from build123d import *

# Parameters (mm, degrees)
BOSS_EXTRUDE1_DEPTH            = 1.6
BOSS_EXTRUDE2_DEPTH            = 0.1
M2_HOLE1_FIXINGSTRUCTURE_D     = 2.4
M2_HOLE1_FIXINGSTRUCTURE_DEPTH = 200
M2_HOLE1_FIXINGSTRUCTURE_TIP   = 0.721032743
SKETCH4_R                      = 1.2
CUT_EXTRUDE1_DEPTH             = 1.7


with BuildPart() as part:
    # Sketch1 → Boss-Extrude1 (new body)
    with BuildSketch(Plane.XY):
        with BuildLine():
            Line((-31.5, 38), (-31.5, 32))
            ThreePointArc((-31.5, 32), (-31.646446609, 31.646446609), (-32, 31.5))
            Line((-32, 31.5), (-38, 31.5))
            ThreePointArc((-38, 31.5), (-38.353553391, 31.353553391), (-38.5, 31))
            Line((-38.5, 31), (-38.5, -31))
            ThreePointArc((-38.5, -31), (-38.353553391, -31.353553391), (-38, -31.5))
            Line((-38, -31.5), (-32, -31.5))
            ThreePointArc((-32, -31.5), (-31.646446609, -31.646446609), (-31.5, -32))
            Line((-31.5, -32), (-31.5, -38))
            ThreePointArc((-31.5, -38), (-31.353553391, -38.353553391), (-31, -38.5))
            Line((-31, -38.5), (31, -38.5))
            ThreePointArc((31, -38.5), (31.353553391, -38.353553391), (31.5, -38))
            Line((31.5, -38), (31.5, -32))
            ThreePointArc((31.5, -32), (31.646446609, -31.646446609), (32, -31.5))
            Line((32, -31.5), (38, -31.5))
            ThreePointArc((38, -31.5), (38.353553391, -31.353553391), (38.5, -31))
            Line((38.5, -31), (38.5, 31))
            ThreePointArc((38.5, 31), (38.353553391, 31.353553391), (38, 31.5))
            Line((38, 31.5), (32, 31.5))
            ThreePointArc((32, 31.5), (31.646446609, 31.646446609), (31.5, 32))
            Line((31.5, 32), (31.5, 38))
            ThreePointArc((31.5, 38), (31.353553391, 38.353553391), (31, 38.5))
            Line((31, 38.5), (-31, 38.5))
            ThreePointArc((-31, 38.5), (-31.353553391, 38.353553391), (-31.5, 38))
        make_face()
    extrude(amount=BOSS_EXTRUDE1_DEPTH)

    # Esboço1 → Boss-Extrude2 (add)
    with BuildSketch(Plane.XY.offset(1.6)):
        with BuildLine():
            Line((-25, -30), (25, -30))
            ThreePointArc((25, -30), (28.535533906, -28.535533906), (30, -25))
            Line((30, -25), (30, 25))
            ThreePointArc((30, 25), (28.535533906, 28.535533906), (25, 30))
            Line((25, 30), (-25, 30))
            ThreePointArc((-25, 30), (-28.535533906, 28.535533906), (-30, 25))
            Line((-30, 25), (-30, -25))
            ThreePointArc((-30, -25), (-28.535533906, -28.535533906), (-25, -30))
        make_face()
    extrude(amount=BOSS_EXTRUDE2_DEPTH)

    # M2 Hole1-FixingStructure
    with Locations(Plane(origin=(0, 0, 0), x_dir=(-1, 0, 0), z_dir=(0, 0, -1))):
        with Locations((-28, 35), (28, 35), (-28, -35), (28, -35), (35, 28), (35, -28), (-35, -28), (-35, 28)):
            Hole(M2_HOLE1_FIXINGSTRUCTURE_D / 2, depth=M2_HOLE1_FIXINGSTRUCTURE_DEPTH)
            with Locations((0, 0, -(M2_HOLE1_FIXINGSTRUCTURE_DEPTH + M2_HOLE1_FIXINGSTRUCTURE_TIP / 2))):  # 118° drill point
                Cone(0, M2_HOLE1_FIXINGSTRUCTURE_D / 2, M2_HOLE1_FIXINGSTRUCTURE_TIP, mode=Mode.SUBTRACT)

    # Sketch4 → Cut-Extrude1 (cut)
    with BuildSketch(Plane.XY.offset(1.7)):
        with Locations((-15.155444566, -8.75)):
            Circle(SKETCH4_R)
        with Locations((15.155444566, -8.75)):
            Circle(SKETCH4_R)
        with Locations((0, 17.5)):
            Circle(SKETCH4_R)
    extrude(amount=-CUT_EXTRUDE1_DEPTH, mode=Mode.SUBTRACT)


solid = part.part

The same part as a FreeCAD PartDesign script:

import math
import FreeCAD as App
import Part
import Sketcher

V = App.Vector
Q = App.Units.Quantity

doc = App.newDocument("Part")
body = doc.addObject("PartDesign::Body", "Body")

sketch1 = body.newObject("Sketcher::SketchObject", "Sketch")
sketch1.AttachmentSupport = (doc.getObject("XY_Plane"), [""])
sketch1.MapMode = "FlatFace"
sketch1.addGeometry(Part.LineSegment(V(-31.5, 38, 0), V(-31.5, 32, 0)), False)
sketch1.addGeometry(Part.ArcOfCircle(Part.Circle(V(-32, 32, 0), V(0, 0, 1), 0.5), math.radians(-90), math.radians(0)), False)
sketch1.addGeometry(Part.LineSegment(V(-32, 31.5, 0), V(-38, 31.5, 0)), False)
sketch1.addGeometry(Part.ArcOfCircle(Part.Circle(V(-38, 31, 0), V(0, 0, 1), 0.5), math.radians(90), math.radians(180)), False)
sketch1.addGeometry(Part.LineSegment(V(-38.5, 31, 0), V(-38.5, -31, 0)), False)
sketch1.addGeometry(Part.ArcOfCircle(Part.Circle(V(-38, -31, 0), V(0, 0, 1), 0.5), math.radians(180), math.radians(270)), False)
sketch1.addGeometry(Part.LineSegment(V(-38, -31.5, 0), V(-32, -31.5, 0)), False)
sketch1.addGeometry(Part.ArcOfCircle(Part.Circle(V(-32, -32, 0), V(0, 0, 1), 0.5), math.radians(0), math.radians(90)), False)
sketch1.addGeometry(Part.LineSegment(V(-31.5, -32, 0), V(-31.5, -38, 0)), False)
sketch1.addGeometry(Part.ArcOfCircle(Part.Circle(V(-31, -38, 0), V(0, 0, 1), 0.5), math.radians(180), math.radians(270)), False)
sketch1.addGeometry(Part.LineSegment(V(-31, -38.5, 0), V(31, -38.5, 0)), False)
sketch1.addGeometry(Part.ArcOfCircle(Part.Circle(V(31, -38, 0), V(0, 0, 1), 0.5), math.radians(-90), math.radians(0)), False)
sketch1.addGeometry(Part.LineSegment(V(31.5, -38, 0), V(31.5, -32, 0)), False)
sketch1.addGeometry(Part.ArcOfCircle(Part.Circle(V(32, -32, 0), V(0, 0, 1), 0.5), math.radians(90), math.radians(180)), False)
sketch1.addGeometry(Part.LineSegment(V(32, -31.5, 0), V(38, -31.5, 0)), False)
sketch1.addGeometry(Part.ArcOfCircle(Part.Circle(V(38, -31, 0), V(0, 0, 1), 0.5), math.radians(-90), math.radians(0)), False)
sketch1.addGeometry(Part.LineSegment(V(38.5, -31, 0), V(38.5, 31, 0)), False)
sketch1.addGeometry(Part.ArcOfCircle(Part.Circle(V(38, 31, 0), V(0, 0, 1), 0.5), math.radians(0), math.radians(90)), False)
sketch1.addGeometry(Part.LineSegment(V(38, 31.5, 0), V(32, 31.5, 0)), False)
sketch1.addGeometry(Part.ArcOfCircle(Part.Circle(V(32, 32, 0), V(0, 0, 1), 0.5), math.radians(180), math.radians(270)), False)
sketch1.addGeometry(Part.LineSegment(V(31.5, 32, 0), V(31.5, 38, 0)), False)
sketch1.addGeometry(Part.ArcOfCircle(Part.Circle(V(31, 38, 0), V(0, 0, 1), 0.5), math.radians(0), math.radians(90)), False)
sketch1.addGeometry(Part.LineSegment(V(31, 38.5, 0), V(-31, 38.5, 0)), False)
sketch1.addGeometry(Part.ArcOfCircle(Part.Circle(V(-31, 38, 0), V(0, 0, 1), 0.5), math.radians(90), math.radians(180)), False)
sketch1.addConstraint(Sketcher.Constraint("Tangent", 0, 2, 1, 2))
sketch1.addConstraint(Sketcher.Constraint("Tangent", 1, 1, 2, 1))
sketch1.addConstraint(Sketcher.Constraint("Tangent", 2, 2, 3, 1))
sketch1.addConstraint(Sketcher.Constraint("Tangent", 3, 2, 4, 1))
sketch1.addConstraint(Sketcher.Constraint("Tangent", 4, 2, 5, 1))
sketch1.addConstraint(Sketcher.Constraint("Tangent", 5, 2, 6, 1))
sketch1.addConstraint(Sketcher.Constraint("Tangent", 6, 2, 7, 2))
sketch1.addConstraint(Sketcher.Constraint("Tangent", 7, 1, 8, 1))
sketch1.addConstraint(Sketcher.Constraint("Tangent", 8, 2, 9, 1))
sketch1.addConstraint(Sketcher.Constraint("Tangent", 9, 2, 10, 1))
sketch1.addConstraint(Sketcher.Constraint("Tangent", 10, 2, 11, 1))
sketch1.addConstraint(Sketcher.Constraint("Tangent", 11, 2, 12, 1))
sketch1.addConstraint(Sketcher.Constraint("Tangent", 12, 2, 13, 2))
sketch1.addConstraint(Sketcher.Constraint("Tangent", 13, 1, 14, 1))
sketch1.addConstraint(Sketcher.Constraint("Tangent", 14, 2, 15, 1))
sketch1.addConstraint(Sketcher.Constraint("Tangent", 15, 2, 16, 1))
sketch1.addConstraint(Sketcher.Constraint("Tangent", 16, 2, 17, 1))
sketch1.addConstraint(Sketcher.Constraint("Tangent", 17, 2, 18, 1))
sketch1.addConstraint(Sketcher.Constraint("Tangent", 18, 2, 19, 2))
sketch1.addConstraint(Sketcher.Constraint("Tangent", 19, 1, 20, 1))
sketch1.addConstraint(Sketcher.Constraint("Tangent", 20, 2, 21, 1))
sketch1.addConstraint(Sketcher.Constraint("Tangent", 21, 2, 22, 1))
sketch1.addConstraint(Sketcher.Constraint("Tangent", 22, 2, 23, 1))
sketch1.addConstraint(Sketcher.Constraint("Tangent", 23, 2, 0, 1))
sketch1.addConstraint(Sketcher.Constraint("Vertical", 0))
sketch1.addConstraint(Sketcher.Constraint("Horizontal", 2))
sketch1.addConstraint(Sketcher.Constraint("Vertical", 4))
sketch1.addConstraint(Sketcher.Constraint("Horizontal", 6))
sketch1.addConstraint(Sketcher.Constraint("Vertical", 8))
sketch1.addConstraint(Sketcher.Constraint("Horizontal", 10))
sketch1.addConstraint(Sketcher.Constraint("Vertical", 12))
sketch1.addConstraint(Sketcher.Constraint("Horizontal", 14))
sketch1.addConstraint(Sketcher.Constraint("Vertical", 16))
sketch1.addConstraint(Sketcher.Constraint("Horizontal", 18))
sketch1.addConstraint(Sketcher.Constraint("Vertical", 20))
sketch1.addConstraint(Sketcher.Constraint("Horizontal", 22))
sketch1.addConstraint(Sketcher.Constraint("Equal", 1, 3))
sketch1.addConstraint(Sketcher.Constraint("Equal", 3, 5))
sketch1.addConstraint(Sketcher.Constraint("Equal", 5, 7))
sketch1.addConstraint(Sketcher.Constraint("Equal", 7, 9))
sketch1.addConstraint(Sketcher.Constraint("Equal", 9, 11))
sketch1.addConstraint(Sketcher.Constraint("Equal", 11, 13))
sketch1.addConstraint(Sketcher.Constraint("Equal", 13, 15))
sketch1.addConstraint(Sketcher.Constraint("Equal", 15, 17))
sketch1.addConstraint(Sketcher.Constraint("Equal", 17, 19))
sketch1.addConstraint(Sketcher.Constraint("Equal", 19, 21))
sketch1.addConstraint(Sketcher.Constraint("Equal", 21, 23))
sketch1.addConstraint(Sketcher.Constraint("Symmetric", 1, 3, 13, 3, -1, 1))
sketch1.addConstraint(Sketcher.Constraint("Symmetric", 5, 3, 17, 3, -1, 1))
sketch1.addConstraint(Sketcher.Constraint("Symmetric", 9, 3, 21, 3, -1, 1))
sketch1.addConstraint(Sketcher.Constraint("Symmetric", 7, 3, 13, 3, -2))
sketch1.addConstraint(Sketcher.Constraint("Equal", 18, 0))
sketch1.addConstraint(Sketcher.Constraint("Equal", 22, 4))
sketch1.addConstraint(Sketcher.Constraint("Radius", 1, Q("0.5 mm")))
sketch1.addConstraint(Sketcher.Constraint("DistanceX", 2, 2, 2, 1, Q("6 mm")))
sketch1.addConstraint(Sketcher.Constraint("DistanceX", 10, 1, 10, 2, Q("62 mm")))
pad1 = body.newObject("PartDesign::Pad", "Pad")
pad1.Profile = sketch1
pad1.Length = 1.6

sketch2 = body.newObject("Sketcher::SketchObject", "Sketch001")
sketch2.AttachmentSupport = (doc.getObject("XY_Plane"), [""])
sketch2.MapMode = "FlatFace"
sketch2.AttachmentOffset = App.Placement(V(0, 0, 1.6), App.Rotation())
sketch2.addGeometry(Part.LineSegment(V(-25, -30, 0), V(25, -30, 0)), False)
sketch2.addGeometry(Part.ArcOfCircle(Part.Circle(V(25, -25, 0), V(0, 0, 1), 5), math.radians(-90), math.radians(0)), False)
sketch2.addGeometry(Part.LineSegment(V(30, -25, 0), V(30, 25, 0)), False)
sketch2.addGeometry(Part.ArcOfCircle(Part.Circle(V(25, 25, 0), V(0, 0, 1), 5), math.radians(0), math.radians(90)), False)
sketch2.addGeometry(Part.LineSegment(V(25, 30, 0), V(-25, 30, 0)), False)
sketch2.addGeometry(Part.ArcOfCircle(Part.Circle(V(-25, 25, 0), V(0, 0, 1), 5), math.radians(90), math.radians(180)), False)
sketch2.addGeometry(Part.LineSegment(V(-30, 25, 0), V(-30, -25, 0)), False)
sketch2.addGeometry(Part.ArcOfCircle(Part.Circle(V(-25, -25, 0), V(0, 0, 1), 5), math.radians(180), math.radians(270)), False)
sketch2.addConstraint(Sketcher.Constraint("Tangent", 0, 2, 1, 1))
sketch2.addConstraint(Sketcher.Constraint("Tangent", 1, 2, 2, 1))
sketch2.addConstraint(Sketcher.Constraint("Tangent", 2, 2, 3, 1))
sketch2.addConstraint(Sketcher.Constraint("Tangent", 3, 2, 4, 1))
sketch2.addConstraint(Sketcher.Constraint("Tangent", 4, 2, 5, 1))
sketch2.addConstraint(Sketcher.Constraint("Tangent", 5, 2, 6, 1))
sketch2.addConstraint(Sketcher.Constraint("Tangent", 6, 2, 7, 1))
sketch2.addConstraint(Sketcher.Constraint("Tangent", 7, 2, 0, 1))
sketch2.addConstraint(Sketcher.Constraint("Horizontal", 0))
sketch2.addConstraint(Sketcher.Constraint("Vertical", 2))
sketch2.addConstraint(Sketcher.Constraint("Horizontal", 4))
sketch2.addConstraint(Sketcher.Constraint("Vertical", 6))
sketch2.addConstraint(Sketcher.Constraint("Equal", 1, 3))
sketch2.addConstraint(Sketcher.Constraint("Equal", 3, 5))
sketch2.addConstraint(Sketcher.Constraint("Equal", 5, 7))
sketch2.addConstraint(Sketcher.Constraint("Symmetric", 1, 3, 5, 3, -1, 1))
sketch2.addConstraint(Sketcher.Constraint("Equal", 4, 2))
sketch2.addConstraint(Sketcher.Constraint("Radius", 1, Q("5 mm")))
sketch2.addConstraint(Sketcher.Constraint("DistanceX", 0, 1, 0, 2, Q("50 mm")))
pad2 = body.newObject("PartDesign::Pad", "Pad001")
pad2.Profile = sketch2
pad2.Length = 0.1

sketch3 = body.newObject("Sketcher::SketchObject", "Sketch002")
sketch3.AttachmentSupport = (doc.getObject("XY_Plane"), [""])
sketch3.MapMode = "FlatFace"
sketch3.addGeometry(Part.Circle(V(28, 35, 0), V(0, 0, 1), 1.2), False)
sketch3.addGeometry(Part.Circle(V(-28, 35, 0), V(0, 0, 1), 1.2), False)
sketch3.addGeometry(Part.Circle(V(28, -35, 0), V(0, 0, 1), 1.2), False)
sketch3.addGeometry(Part.Circle(V(-28, -35, 0), V(0, 0, 1), 1.2), False)
sketch3.addGeometry(Part.Circle(V(-35, 28, 0), V(0, 0, 1), 1.2), False)
sketch3.addGeometry(Part.Circle(V(-35, -28, 0), V(0, 0, 1), 1.2), False)
sketch3.addGeometry(Part.Circle(V(35, -28, 0), V(0, 0, 1), 1.2), False)
sketch3.addGeometry(Part.Circle(V(35, 28, 0), V(0, 0, 1), 1.2), False)
sketch3.addConstraint(Sketcher.Constraint("Equal", 0, 1))
sketch3.addConstraint(Sketcher.Constraint("Equal", 1, 2))
sketch3.addConstraint(Sketcher.Constraint("Equal", 2, 3))
sketch3.addConstraint(Sketcher.Constraint("Equal", 3, 4))
sketch3.addConstraint(Sketcher.Constraint("Equal", 4, 5))
sketch3.addConstraint(Sketcher.Constraint("Equal", 5, 6))
sketch3.addConstraint(Sketcher.Constraint("Equal", 6, 7))
sketch3.addConstraint(Sketcher.Constraint("Symmetric", 1, 3, 2, 3, -1, 1))
sketch3.addConstraint(Sketcher.Constraint("Symmetric", 0, 3, 3, 3, -1, 1))
sketch3.addConstraint(Sketcher.Constraint("Symmetric", 4, 3, 6, 3, -1, 1))
sketch3.addConstraint(Sketcher.Constraint("Symmetric", 5, 3, 7, 3, -1, 1))
sketch3.addConstraint(Sketcher.Constraint("Symmetric", 0, 3, 1, 3, -2))
sketch3.addConstraint(Sketcher.Constraint("Symmetric", 5, 3, 6, 3, -2))
sketch3.addConstraint(Sketcher.Constraint("Diameter", 0, Q("2.4 mm")))
sketch3.addConstraint(Sketcher.Constraint("DistanceX", -1, 1, 0, 3, Q("28 mm")))
sketch3.addConstraint(Sketcher.Constraint("DistanceY", -1, 1, 0, 3, Q("35 mm")))
sketch3.addConstraint(Sketcher.Constraint("DistanceX", 4, 3, -1, 1, Q("35 mm")))
sketch3.addConstraint(Sketcher.Constraint("DistanceY", -1, 1, 4, 3, Q("28 mm")))
doc.recompute()
hole = body.newObject("PartDesign::Hole", "Hole")
hole.Profile = sketch3
hole.ThreadType = "None"
hole.Diameter = 2.4
hole.DepthType = "Dimension"
hole.Depth = 200
hole.DrillPoint = "Angled"
hole.DrillPointAngle = 118
hole.Reversed = True

sketch4 = body.newObject("Sketcher::SketchObject", "Sketch003")
sketch4.AttachmentSupport = (doc.getObject("XY_Plane"), [""])
sketch4.MapMode = "FlatFace"
sketch4.AttachmentOffset = App.Placement(V(0, 0, 1.7), App.Rotation())
sketch4.addGeometry(Part.Circle(V(-15.2, -8.8, 0), V(0, 0, 1), 1.2), False)
sketch4.addGeometry(Part.Circle(V(15.2, -8.8, 0), V(0, 0, 1), 1.2), False)
sketch4.addGeometry(Part.Circle(V(0, 17.5, 0), V(0, 0, 1), 1.2), False)
sketch4.addConstraint(Sketcher.Constraint("Equal", 0, 1))
sketch4.addConstraint(Sketcher.Constraint("Equal", 1, 2))
sketch4.addConstraint(Sketcher.Constraint("Symmetric", 0, 3, 1, 3, -2))
sketch4.addConstraint(Sketcher.Constraint("PointOnObject", 2, 3, -2))
sketch4.addConstraint(Sketcher.Constraint("Diameter", 0, Q("2.4 mm")))
sketch4.addConstraint(Sketcher.Constraint("DistanceY", -1, 1, 2, 3, Q("17.5 mm")))
sketch4.addConstraint(Sketcher.Constraint("DistanceY", 0, 3, -1, 1, Q("8.75 mm")))
sketch4.addConstraint(Sketcher.Constraint("DistanceX", 0, 3, 1, 3, Q("30.310889 mm")))
pocket1 = body.newObject("PartDesign::Pocket", "Pocket")
pocket1.Profile = sketch4
pocket1.Length = 1.7

doc.recompute()
